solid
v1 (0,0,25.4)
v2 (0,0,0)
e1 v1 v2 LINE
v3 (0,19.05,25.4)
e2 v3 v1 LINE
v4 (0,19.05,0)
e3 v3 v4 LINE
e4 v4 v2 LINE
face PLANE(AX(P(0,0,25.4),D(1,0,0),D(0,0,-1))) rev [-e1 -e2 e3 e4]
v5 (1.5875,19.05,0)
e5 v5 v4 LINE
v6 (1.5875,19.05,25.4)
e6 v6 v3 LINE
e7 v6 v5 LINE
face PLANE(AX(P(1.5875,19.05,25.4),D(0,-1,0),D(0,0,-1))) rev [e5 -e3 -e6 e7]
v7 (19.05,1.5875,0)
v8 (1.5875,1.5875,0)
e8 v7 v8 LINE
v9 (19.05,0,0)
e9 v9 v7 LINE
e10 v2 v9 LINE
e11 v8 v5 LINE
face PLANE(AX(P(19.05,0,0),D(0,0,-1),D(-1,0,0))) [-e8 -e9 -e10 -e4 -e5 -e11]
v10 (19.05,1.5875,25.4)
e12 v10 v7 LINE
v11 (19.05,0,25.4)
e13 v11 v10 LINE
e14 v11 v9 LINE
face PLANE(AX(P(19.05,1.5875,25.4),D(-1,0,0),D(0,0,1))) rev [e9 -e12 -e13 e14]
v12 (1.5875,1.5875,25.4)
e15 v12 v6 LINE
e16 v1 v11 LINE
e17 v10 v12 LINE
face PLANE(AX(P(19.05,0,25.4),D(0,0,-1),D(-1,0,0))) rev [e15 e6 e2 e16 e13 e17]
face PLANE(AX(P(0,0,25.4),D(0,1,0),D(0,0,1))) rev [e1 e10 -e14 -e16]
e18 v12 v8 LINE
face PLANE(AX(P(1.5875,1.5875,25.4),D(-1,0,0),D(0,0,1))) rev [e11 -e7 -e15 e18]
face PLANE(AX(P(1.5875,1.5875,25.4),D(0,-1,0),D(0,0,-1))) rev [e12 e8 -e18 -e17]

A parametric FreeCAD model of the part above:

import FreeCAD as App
import Part
import Sketcher
from FreeCAD import Vector
Q = App.Units.Quantity


def add_polygon(sketch, points):
    """Adds a closed chain of lines whose ends are joined by coincident constraints."""
    first, n = sketch.GeometryCount, len(points)
    for a, b in zip(points, points[1:] + points[:1]):
        sketch.addGeometry(Part.LineSegment(App.Vector(*a, 0), App.Vector(*b, 0)), False)
    for i in range(n):
        sketch.addConstraint(Sketcher.Constraint("Coincident", first + i, 2, first + (i + 1) % n, 1))

doc = App.newDocument("Part")
body = doc.addObject("PartDesign::Body", "Body")

# Sketch on XY plane
sketch1 = body.newObject("Sketcher::SketchObject", "Sketch")
sketch1.AttachmentSupport = (doc.getObject("XY_Plane"), [""])
sketch1.MapMode = "FlatFace"
add_polygon(sketch1, [(0, 19.1), (0, 0), (19.1, 0), (19.1, 1.6), (1.6, 1.6), (1.6, 19.1)])  # lines 0-5
sketch1.addConstraint(Sketcher.Constraint("Vertical", 0))
sketch1.addConstraint(Sketcher.Constraint("Horizontal", 1))
sketch1.addConstraint(Sketcher.Constraint("Vertical", 2))
sketch1.addConstraint(Sketcher.Constraint("Horizontal", 3))
sketch1.addConstraint(Sketcher.Constraint("Vertical", 4))
sketch1.addConstraint(Sketcher.Constraint("Horizontal", 5))
sketch1.addConstraint(Sketcher.Constraint("Coincident", 0, 2, -1, 1))
sketch1.addConstraint(Sketcher.Constraint("Equal", 1, 0))
sketch1.addConstraint(Sketcher.Constraint("Equal", 5, 2))
sketch1.addConstraint(Sketcher.Constraint("DistanceX", 1, 1, 1, 2, Q("0.75 in")))
sketch1.addConstraint(Sketcher.Constraint("DistanceX", 3, 2, 3, 1, Q("0.6875 in")))
pad1 = body.newObject("PartDesign::Pad", "Pad")
pad1.Profile = sketch1
pad1.Length = Q("1 in")

doc.recompute()
